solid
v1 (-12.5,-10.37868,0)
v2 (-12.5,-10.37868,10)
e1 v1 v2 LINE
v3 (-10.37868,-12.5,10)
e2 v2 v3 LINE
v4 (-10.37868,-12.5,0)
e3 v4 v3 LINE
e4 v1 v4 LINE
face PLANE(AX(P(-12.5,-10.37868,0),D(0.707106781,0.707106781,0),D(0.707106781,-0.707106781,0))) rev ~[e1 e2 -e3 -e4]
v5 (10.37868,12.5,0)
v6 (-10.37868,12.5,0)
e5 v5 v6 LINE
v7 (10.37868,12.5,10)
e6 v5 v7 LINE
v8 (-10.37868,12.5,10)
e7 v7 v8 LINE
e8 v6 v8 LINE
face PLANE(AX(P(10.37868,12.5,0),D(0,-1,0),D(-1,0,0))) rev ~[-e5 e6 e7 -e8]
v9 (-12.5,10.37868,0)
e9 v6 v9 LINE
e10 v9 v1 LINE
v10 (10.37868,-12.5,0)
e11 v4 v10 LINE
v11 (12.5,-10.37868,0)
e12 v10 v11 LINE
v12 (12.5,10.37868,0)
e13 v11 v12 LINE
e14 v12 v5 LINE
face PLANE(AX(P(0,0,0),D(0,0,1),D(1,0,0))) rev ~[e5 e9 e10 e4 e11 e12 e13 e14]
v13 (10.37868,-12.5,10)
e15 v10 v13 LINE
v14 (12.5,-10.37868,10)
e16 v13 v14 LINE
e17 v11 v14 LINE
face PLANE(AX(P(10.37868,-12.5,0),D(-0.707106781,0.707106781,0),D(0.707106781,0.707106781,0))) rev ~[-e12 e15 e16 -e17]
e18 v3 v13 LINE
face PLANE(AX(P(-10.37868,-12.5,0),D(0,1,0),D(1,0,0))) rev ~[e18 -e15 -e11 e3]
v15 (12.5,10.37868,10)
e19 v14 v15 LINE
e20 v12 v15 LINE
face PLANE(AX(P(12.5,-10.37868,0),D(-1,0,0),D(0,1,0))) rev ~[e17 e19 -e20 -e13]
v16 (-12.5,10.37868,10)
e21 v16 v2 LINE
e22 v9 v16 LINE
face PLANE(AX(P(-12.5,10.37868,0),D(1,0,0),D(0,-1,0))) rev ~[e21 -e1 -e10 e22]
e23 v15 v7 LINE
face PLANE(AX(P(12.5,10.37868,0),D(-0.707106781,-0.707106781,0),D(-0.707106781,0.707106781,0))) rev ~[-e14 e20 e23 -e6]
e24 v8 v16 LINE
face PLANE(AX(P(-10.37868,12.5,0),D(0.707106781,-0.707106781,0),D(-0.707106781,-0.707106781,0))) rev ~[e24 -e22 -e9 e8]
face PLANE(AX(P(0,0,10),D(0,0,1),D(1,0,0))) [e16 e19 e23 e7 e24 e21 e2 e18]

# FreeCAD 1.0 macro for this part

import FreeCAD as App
import Part
import Sketcher
Q = App.Units.Quantity

doc = App.newDocument("Part")
body = doc.addObject("PartDesign::Body", "Body")

# Sketch on XY plane
sketch1 = body.newObject("Sketcher::SketchObject", "Sketch")
sketch1.AttachmentSupport = (doc.getObject("XY_Plane"), [""])
sketch1.MapMode = "FlatFace"
sketch1.addGeometry(Part.LineSegment(App.Vector(-12.5, 10.37868, 0), App.Vector(-12.5, -10.37868, 0)), False)
sketch1.addGeometry(Part.LineSegment(App.Vector(-12.5, -10.37868, 0), App.Vector(-10.37868, -12.5, 0)), False)
sketch1.addGeometry(Part.LineSegment(App.Vector(-10.37868, -12.5, 0), App.Vector(10.37868, -12.5, 0)), False)
sketch1.addGeometry(Part.LineSegment(App.Vector(10.37868, -12.5, 0), App.Vector(12.5, -10.37868, 0)), False)
sketch1.addGeometry(Part.LineSegment(App.Vector(12.5, -10.37868, 0), App.Vector(12.5, 10.37868, 0)), False)
sketch1.addGeometry(Part.LineSegment(App.Vector(12.5, 10.37868, 0), App.Vector(10.37868, 12.5, 0)), False)
sketch1.addGeometry(Part.LineSegment(App.Vector(10.37868, 12.5, 0), App.Vector(-10.37868, 12.5, 0)), False)
sketch1.addGeometry(Part.LineSegment(App.Vector(-10.37868, 12.5, 0), App.Vector(-12.5, 10.37868, 0)), False)
sketch1.addConstraint(Sketcher.Constraint("Coincident", 0, 2, 1, 1))
sketch1.addConstraint(Sketcher.Constraint("Coincident", 1, 2, 2, 1))
sketch1.addConstraint(Sketcher.Constraint("Coincident", 2, 2, 3, 1))
sketch1.addConstraint(Sketcher.Constraint("Coincident", 3, 2, 4, 1))
sketch1.addConstraint(Sketcher.Constraint("Coincident", 4, 2, 5, 1))
sketch1.addConstraint(Sketcher.Constraint("Coincident", 5, 2, 6, 1))
sketch1.addConstraint(Sketcher.Constraint("Coincident", 6, 2, 7, 1))
sketch1.addConstraint(Sketcher.Constraint("Coincident", 7, 2, 0, 1))
sketch1.addConstraint(Sketcher.Constraint("Vertical", 0))
sketch1.addConstraint(Sketcher.Constraint("Horizontal", 2))
sketch1.addConstraint(Sketcher.Constraint("Vertical", 4))
sketch1.addConstraint(Sketcher.Constraint("Horizontal", 6))
sketch1.addConstraint(Sketcher.Constraint("Symmetric", 0, 2, 4, 2, -1, 1))
sketch1.addConstraint(Sketcher.Constraint("Symmetric", 1, 2, 5, 2, -1, 1))
sketch1.addConstraint(Sketcher.Constraint("Perpendicular", 1, 3))
sketch1.addConstraint(Sketcher.Constraint("Perpendicular", 5, 7))
sketch1.addConstraint(Sketcher.Constraint("Horizontal", 0, 2, 3, 2))
sketch1.addConstraint(Sketcher.Constraint("Horizontal", 4, 2, 7, 2))
sketch1.addConstraint(Sketcher.Constraint("Vertical", 2, 2, 5, 2))
sketch1.addConstraint(Sketcher.Constraint("Equal", 6, 0))
sketch1.addConstraint(Sketcher.Constraint("Distance", 1, Q("3 mm")))
sketch1.addConstraint(Sketcher.Constraint("DistanceX", 0, 2, 3, 2, Q("25 mm")))
pad1 = body.newObject("PartDesign::Pad", "Pad")
pad1.Profile = sketch1
pad1.Length = 10

doc.recompute()
